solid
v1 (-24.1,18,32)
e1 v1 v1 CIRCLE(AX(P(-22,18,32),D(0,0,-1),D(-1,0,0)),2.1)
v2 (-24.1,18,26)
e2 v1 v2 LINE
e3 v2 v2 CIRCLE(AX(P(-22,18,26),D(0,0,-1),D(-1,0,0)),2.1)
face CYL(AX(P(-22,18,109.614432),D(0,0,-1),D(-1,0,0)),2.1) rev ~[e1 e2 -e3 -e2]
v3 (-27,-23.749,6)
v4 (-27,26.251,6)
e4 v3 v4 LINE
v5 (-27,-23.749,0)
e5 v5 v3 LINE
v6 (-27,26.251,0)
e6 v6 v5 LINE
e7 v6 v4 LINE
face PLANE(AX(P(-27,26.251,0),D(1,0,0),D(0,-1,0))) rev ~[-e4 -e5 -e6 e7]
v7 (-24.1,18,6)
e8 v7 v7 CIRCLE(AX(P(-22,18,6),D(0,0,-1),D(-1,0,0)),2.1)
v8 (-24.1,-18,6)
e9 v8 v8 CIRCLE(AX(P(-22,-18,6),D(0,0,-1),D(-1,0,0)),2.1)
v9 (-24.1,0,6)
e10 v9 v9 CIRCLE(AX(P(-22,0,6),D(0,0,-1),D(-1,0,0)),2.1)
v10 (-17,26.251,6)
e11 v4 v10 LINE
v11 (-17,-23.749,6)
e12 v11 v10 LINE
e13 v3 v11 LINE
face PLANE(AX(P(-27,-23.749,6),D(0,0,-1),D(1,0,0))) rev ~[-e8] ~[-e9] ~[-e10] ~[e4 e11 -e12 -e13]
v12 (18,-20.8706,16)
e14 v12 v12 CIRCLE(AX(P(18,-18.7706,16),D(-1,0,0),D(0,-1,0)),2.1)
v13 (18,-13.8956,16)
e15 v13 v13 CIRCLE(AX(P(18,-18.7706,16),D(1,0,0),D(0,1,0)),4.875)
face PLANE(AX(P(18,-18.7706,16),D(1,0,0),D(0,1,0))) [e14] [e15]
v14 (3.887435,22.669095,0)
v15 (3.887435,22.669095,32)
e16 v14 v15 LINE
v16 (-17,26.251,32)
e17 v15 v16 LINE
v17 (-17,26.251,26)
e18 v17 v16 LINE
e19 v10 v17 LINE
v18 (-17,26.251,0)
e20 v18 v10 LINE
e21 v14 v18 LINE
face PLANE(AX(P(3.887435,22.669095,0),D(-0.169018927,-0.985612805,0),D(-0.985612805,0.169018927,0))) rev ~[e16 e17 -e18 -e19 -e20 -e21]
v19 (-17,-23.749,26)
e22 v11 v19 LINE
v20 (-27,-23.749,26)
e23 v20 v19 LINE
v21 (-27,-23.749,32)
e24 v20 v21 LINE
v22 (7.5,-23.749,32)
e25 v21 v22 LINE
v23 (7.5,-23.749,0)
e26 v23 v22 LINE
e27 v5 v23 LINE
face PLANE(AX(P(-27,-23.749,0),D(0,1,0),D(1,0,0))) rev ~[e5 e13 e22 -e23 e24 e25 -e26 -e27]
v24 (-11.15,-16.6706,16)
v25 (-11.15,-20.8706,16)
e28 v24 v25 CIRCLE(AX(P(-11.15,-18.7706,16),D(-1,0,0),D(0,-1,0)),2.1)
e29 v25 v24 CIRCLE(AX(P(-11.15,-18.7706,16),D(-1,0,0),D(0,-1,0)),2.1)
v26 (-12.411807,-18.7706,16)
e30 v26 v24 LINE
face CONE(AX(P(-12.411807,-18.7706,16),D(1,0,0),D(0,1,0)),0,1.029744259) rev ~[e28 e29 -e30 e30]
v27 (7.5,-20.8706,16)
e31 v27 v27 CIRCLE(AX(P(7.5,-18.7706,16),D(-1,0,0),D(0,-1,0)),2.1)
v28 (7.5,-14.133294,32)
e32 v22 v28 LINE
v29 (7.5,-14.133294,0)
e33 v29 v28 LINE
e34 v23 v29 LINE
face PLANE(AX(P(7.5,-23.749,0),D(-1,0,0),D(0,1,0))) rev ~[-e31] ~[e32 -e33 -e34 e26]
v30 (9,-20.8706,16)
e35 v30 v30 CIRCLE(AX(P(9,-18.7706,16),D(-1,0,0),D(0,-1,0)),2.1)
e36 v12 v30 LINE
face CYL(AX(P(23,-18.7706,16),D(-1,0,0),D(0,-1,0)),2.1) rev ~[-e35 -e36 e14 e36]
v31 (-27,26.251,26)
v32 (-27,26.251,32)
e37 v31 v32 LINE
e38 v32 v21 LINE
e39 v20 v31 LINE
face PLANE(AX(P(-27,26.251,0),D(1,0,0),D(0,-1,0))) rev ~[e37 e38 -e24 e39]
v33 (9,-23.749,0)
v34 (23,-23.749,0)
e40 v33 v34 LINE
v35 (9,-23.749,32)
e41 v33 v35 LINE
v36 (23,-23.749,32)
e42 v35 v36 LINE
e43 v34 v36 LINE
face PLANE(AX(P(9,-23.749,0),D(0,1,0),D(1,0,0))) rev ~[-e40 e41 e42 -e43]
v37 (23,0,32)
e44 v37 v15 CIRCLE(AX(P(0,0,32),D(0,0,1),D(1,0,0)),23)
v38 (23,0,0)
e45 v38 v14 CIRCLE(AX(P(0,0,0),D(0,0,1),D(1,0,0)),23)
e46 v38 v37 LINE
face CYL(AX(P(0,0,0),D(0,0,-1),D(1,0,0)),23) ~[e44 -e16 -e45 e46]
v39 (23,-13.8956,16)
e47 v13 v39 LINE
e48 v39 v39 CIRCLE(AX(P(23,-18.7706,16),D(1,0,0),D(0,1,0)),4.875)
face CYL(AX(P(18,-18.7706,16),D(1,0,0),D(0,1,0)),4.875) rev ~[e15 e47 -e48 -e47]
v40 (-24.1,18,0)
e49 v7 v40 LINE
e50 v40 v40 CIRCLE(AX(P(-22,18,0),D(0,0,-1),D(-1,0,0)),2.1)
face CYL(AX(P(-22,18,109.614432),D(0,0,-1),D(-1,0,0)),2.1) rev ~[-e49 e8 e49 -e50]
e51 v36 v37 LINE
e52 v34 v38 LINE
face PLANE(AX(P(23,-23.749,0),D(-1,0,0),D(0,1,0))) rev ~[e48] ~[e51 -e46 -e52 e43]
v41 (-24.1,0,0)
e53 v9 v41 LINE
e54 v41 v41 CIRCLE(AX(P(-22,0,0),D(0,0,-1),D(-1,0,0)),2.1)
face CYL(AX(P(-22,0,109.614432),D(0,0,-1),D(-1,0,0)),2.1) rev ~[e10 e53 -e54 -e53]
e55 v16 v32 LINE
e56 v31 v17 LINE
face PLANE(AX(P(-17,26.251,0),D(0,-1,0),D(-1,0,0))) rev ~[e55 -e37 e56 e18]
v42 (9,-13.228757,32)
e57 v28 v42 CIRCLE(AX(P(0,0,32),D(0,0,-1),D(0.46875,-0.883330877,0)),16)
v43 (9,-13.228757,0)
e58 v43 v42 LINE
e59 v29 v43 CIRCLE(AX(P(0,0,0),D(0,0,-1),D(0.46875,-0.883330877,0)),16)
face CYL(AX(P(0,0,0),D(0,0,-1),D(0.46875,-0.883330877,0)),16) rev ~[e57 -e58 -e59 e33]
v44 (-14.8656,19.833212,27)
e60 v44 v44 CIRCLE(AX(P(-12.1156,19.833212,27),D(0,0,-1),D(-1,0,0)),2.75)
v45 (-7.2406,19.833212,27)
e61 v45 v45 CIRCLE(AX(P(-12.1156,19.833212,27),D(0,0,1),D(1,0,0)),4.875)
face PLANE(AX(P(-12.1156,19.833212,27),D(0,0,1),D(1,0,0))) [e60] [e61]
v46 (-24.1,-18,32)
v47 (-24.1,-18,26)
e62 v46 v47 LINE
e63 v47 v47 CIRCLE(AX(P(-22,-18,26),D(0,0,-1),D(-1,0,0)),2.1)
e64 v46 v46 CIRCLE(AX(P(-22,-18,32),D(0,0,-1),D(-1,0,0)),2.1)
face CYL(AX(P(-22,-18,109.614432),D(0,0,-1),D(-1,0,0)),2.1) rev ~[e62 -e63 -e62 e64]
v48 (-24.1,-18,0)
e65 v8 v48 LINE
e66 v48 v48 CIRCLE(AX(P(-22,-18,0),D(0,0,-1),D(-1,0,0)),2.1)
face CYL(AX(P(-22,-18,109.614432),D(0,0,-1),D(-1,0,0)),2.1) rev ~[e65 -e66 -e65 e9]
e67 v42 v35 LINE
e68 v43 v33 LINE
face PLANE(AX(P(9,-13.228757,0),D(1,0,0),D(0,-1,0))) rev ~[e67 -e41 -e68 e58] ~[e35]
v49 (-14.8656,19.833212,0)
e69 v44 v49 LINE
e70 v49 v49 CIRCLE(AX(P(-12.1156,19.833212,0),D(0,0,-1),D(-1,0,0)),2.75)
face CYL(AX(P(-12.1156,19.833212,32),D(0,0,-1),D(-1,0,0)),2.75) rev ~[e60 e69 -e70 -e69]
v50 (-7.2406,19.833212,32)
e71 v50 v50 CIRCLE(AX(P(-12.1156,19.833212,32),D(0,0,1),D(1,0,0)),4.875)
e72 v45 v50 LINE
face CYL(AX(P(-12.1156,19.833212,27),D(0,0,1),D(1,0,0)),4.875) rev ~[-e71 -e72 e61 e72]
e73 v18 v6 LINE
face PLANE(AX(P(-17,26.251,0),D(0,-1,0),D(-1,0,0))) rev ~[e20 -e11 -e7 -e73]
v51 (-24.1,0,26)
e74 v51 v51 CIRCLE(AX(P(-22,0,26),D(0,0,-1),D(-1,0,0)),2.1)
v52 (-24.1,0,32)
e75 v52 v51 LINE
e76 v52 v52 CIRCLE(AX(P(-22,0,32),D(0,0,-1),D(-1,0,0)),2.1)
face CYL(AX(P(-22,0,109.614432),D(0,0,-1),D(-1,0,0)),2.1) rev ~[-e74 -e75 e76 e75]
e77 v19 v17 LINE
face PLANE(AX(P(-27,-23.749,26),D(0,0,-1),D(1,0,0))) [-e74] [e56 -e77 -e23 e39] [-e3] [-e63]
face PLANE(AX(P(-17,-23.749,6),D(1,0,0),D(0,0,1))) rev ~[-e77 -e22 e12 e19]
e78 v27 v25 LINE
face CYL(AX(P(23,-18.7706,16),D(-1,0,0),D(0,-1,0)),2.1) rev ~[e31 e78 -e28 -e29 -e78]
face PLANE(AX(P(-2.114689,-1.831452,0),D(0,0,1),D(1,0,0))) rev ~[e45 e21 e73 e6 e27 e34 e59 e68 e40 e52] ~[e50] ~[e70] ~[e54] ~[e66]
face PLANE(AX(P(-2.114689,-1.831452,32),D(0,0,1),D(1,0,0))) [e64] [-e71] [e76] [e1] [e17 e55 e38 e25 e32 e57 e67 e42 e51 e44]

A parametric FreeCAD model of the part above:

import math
import FreeCAD as App
import Part
import Sketcher
Q = App.Units.Quantity


def add_polygon(sketch, points):
    """Adds a closed chain of lines whose ends are joined by coincident constraints."""
    first, n = sketch.GeometryCount, len(points)
    for a, b in zip(points, points[1:] + points[:1]):
        sketch.addGeometry(Part.LineSegment(App.Vector(*a, 0), App.Vector(*b, 0)), False)
    for i in range(n):
        sketch.addConstraint(Sketcher.Constraint("Coincident", first + i, 2, first + (i + 1) % n, 1))

doc = App.newDocument("Part")
body = doc.addObject("PartDesign::Body", "Body")

sketch1 = doc.addObject("Sketcher::SketchObject", "Sketch")
body.addObject(sketch1)
sketch1.AttachmentSupport = (doc.XY_Plane, [""])
sketch1.MapMode = "FlatFace"
sketch1.addGeometry([
    Part.ArcOfCircle(Part.Circle(App.Vector(0, 0, 0), App.Vector(0, 0, 1), 16), math.radians(-56), math.radians(298)),
    Part.LineSegment(App.Vector(9, -13.2, 0), App.Vector(9, -23.7, 0)),
    Part.LineSegment(App.Vector(9, -23.7, 0), App.Vector(23, -23.7, 0)),
    Part.LineSegment(App.Vector(23, -23.7, 0), App.Vector(23, 0, 0)),
    Part.ArcOfCircle(Part.Circle(App.Vector(0, 0, 0), App.Vector(0, 0, 1), 23), math.radians(0), math.radians(80)),
    Part.LineSegment(App.Vector(3.9, 22.7, 0), App.Vector(-17, 26.3, 0)),
    Part.LineSegment(App.Vector(-17, 26.3, 0), App.Vector(-27, 26.3, 0)),
    Part.LineSegment(App.Vector(-27, 26.3, 0), App.Vector(-27, -23.7, 0)),
    Part.LineSegment(App.Vector(-27, -23.7, 0), App.Vector(7.5, -23.7, 0)),
    Part.LineSegment(App.Vector(7.5, -23.7, 0), App.Vector(7.5, -14.1, 0)),
], False)
sketch1.addConstraint([
    Sketcher.Constraint("Coincident", 0, 1, 1, 1),
    Sketcher.Constraint("Coincident", 1, 2, 2, 1),
    Sketcher.Constraint("Coincident", 2, 2, 3, 1),
    Sketcher.Constraint("Tangent", 3, 2, 4, 1),
    Sketcher.Constraint("Tangent", 4, 2, 5, 1),
    Sketcher.Constraint("Coincident", 5, 2, 6, 1),
    Sketcher.Constraint("Coincident", 6, 2, 7, 1),
    Sketcher.Constraint("Coincident", 7, 2, 8, 1),
    Sketcher.Constraint("Coincident", 8, 2, 9, 1),
    Sketcher.Constraint("Coincident", 9, 2, 0, 2),
    Sketcher.Constraint("Vertical", 1),
    Sketcher.Constraint("Horizontal", 2),
    Sketcher.Constraint("Vertical", 3),
    Sketcher.Constraint("Horizontal", 6),
    Sketcher.Constraint("Vertical", 7),
    Sketcher.Constraint("Horizontal", 8),
    Sketcher.Constraint("Vertical", 9),
    Sketcher.Constraint("Coincident", 0, 3, -1, 1),
    Sketcher.Constraint("Coincident", 4, 3, -1, 1),
    Sketcher.Constraint("Horizontal", 2, 2, 7, 2),
    Sketcher.Constraint("Radius", 0, Q("16 mm")),
    Sketcher.Constraint("Radius", 4, Q("23 mm")),
    Sketcher.Constraint("DistanceX", 2, 1, 2, 2, Q("14 mm")),
    Sketcher.Constraint("DistanceX", 6, 2, 6, 1, Q("10 mm")),
    Sketcher.Constraint("DistanceY", 7, 2, 7, 1, Q("50 mm")),
    Sketcher.Constraint("DistanceX", 8, 1, 8, 2, Q("34.5 mm")),
    Sketcher.Constraint("DistanceX", 5, 2, -1, 1, Q("17 mm")),
    Sketcher.Constraint("DistanceY", 3, 1, 3, 2, Q("23.749 mm")),
])
pad1 = doc.addObject("PartDesign::Pad", "Pad")
body.addObject(pad1)
pad1.Profile = sketch1
pad1.Length = 32

sketch2 = doc.addObject("Sketcher::SketchObject", "Sketch001")
body.addObject(sketch2)
sketch2.AttachmentSupport = (doc.XZ_Plane, [""])
sketch2.MapMode = "FlatFace"
sketch2.AttachmentOffset = App.Placement(App.Vector(0, 0, 23.749), App.Rotation())
add_polygon(sketch2, [(-27, 26), (-27, 6), (-17, 6), (-17, 26)])
sketch2.addConstraint([
    Sketcher.Constraint("Vertical", 0),
    Sketcher.Constraint("Horizontal", 1),
    Sketcher.Constraint("Vertical", 2),
    Sketcher.Constraint("Horizontal", 3),
    Sketcher.Constraint("DistanceX", 1, 1, 1, 2, Q("10 mm")),
    Sketcher.Constraint("DistanceY", 0, 2, 0, 1, Q("20 mm")),
    Sketcher.Constraint("DistanceX", 0, 2, -1, 1, Q("27 mm")),
    Sketcher.Constraint("DistanceY", -1, 1, 0, 2, Q("6 mm")),
])
pocket1 = doc.addObject("PartDesign::Pocket", "Pocket")
body.addObject(pocket1)
pocket1.Profile = sketch2
pocket1.Type = "ThroughAll"

sketch3 = doc.addObject("Sketcher::SketchObject", "Sketch002")
body.addObject(sketch3)
sketch3.AttachmentSupport = (doc.YZ_Plane, [""])
sketch3.MapMode = "FlatFace"
sketch3.AttachmentOffset = App.Placement(App.Vector(0, 0, 23), App.Rotation())
sketch3.addGeometry(Part.Circle(App.Vector(-18.8, 16, 0), App.Vector(0, 0, 1), 2.1), False)
sketch3.addConstraint([
    Sketcher.Constraint("Diameter", 0, Q("4.2 mm")),
    Sketcher.Constraint("DistanceY", -1, 1, 0, 3, Q("16 mm")),
    Sketcher.Constraint("DistanceX", 0, 3, -1, 1, Q("18.7706 mm")),
])
doc.recompute()
hole = doc.addObject("PartDesign::Hole", "Hole")
body.addObject(hole)
hole.Profile = sketch3
hole.ThreadType = "None"
hole.Diameter = 4.2
hole.DepthType = "Dimension"
hole.Depth = 34.15
hole.DrillPoint = "Angled"
hole.DrillPointAngle = 118
hole.HoleCutType = "Counterbore"
hole.HoleCutDiameter = 9.75
hole.HoleCutDepth = 5

sketch4 = doc.addObject("Sketcher::SketchObject", "Sketch003")
body.addObject(sketch4)
sketch4.AttachmentSupport = (doc.XY_Plane, [""])
sketch4.MapMode = "FlatFace"
sketch4.AttachmentOffset = App.Placement(App.Vector(0, 0, 32), App.Rotation())
sketch4.addGeometry([
    Part.Circle(App.Vector(-22, 18, 0), App.Vector(0, 0, 1), 2.1),
    Part.Circle(App.Vector(-22, 0, 0), App.Vector(0, 0, 1), 2.1),
    Part.Circle(App.Vector(-22, -18, 0), App.Vector(0, 0, 1), 2.1),
], False)
sketch4.addConstraint([
    Sketcher.Constraint("Equal", 0, 1),
    Sketcher.Constraint("Equal", 1, 2),
    Sketcher.Constraint("Symmetric", 0, 3, 2, 3, -1),
    Sketcher.Constraint("PointOnObject", 1, 3, -1),
    Sketcher.Constraint("Vertical", 0, 3, 1, 3),
    Sketcher.Constraint("Diameter", 0, Q("4.2 mm")),
    Sketcher.Constraint("DistanceX", 0, 3, -1, 1, Q("22 mm")),
    Sketcher.Constraint("DistanceY", -1, 1, 0, 3, Q("18 mm")),
])
doc.recompute()
hole2 = doc.addObject("PartDesign::Hole", "Hole001")
body.addObject(hole2)
hole2.Profile = sketch4
hole2.ThreadType = "None"
hole2.Diameter = 4.2
hole2.DepthType = "ThroughAll"

sketch5 = doc.addObject("Sketcher::SketchObject", "Sketch004")
body.addObject(sketch5)
sketch5.AttachmentSupport = (doc.XY_Plane, [""])
sketch5.MapMode = "FlatFace"
sketch5.AttachmentOffset = App.Placement(App.Vector(0, 0, 32), App.Rotation())
sketch5.addGeometry(Part.Circle(App.Vector(-12.1, 19.8, 0), App.Vector(0, 0, 1), 2.8), False)
sketch5.addConstraint([
    Sketcher.Constraint("Diameter", 0, Q("5.5 mm")),
    Sketcher.Constraint("DistanceX", 0, 3, -1, 1, Q("12.1156 mm")),
    Sketcher.Constraint("DistanceY", -1, 1, 0, 3, Q("19.833212 mm")),
])
doc.recompute()
hole3 = doc.addObject("PartDesign::Hole", "Hole002")
body.addObject(hole3)
hole3.Profile = sketch5
hole3.ThreadType = "None"
hole3.Diameter = 5.5
hole3.DepthType = "ThroughAll"
hole3.HoleCutType = "Counterbore"
hole3.HoleCutDiameter = 9.75
hole3.HoleCutDepth = 5

sketch6 = doc.addObject("Sketcher::SketchObject", "Sketch005")
body.addObject(sketch6)
sketch6.AttachmentSupport = (doc.XY_Plane, [""])
sketch6.MapMode = "FlatFace"
sketch6.addGeometry(Part.Circle(App.Vector(-12.1, 19.8, 0), App.Vector(0, 0, 1), 2.5), False)
sketch6.addConstraint([
    Sketcher.Constraint("Diameter", 0, Q("5 mm")),
    Sketcher.Constraint("DistanceX", 0, 3, -1, 1, Q("12.1156 mm")),
    Sketcher.Constraint("DistanceY", -1, 1, 0, 3, Q("19.833212 mm")),
])
pocket2 = doc.addObject("PartDesign::Pocket", "Pocket001")
body.addObject(pocket2)
pocket2.Profile = sketch6
pocket2.Length = 7
pocket2.Reversed = True

doc.recompute()
